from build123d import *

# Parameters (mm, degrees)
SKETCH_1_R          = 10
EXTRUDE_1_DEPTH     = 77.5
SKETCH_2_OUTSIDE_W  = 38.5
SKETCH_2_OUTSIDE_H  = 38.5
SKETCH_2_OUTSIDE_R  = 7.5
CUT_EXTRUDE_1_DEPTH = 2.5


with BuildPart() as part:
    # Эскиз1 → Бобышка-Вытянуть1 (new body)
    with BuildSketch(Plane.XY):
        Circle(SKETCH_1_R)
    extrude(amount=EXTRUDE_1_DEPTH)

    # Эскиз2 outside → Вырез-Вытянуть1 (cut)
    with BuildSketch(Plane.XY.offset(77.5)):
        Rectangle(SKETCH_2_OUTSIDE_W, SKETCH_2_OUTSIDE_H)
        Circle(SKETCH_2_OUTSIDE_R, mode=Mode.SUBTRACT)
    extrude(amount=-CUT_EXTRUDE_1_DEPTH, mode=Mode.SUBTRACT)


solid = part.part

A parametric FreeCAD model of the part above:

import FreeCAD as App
import Part
import Sketcher

V = App.Vector
Q = App.Units.Quantity

doc = App.newDocument("Part")
params = doc.addObject("Spreadsheet::Sheet", "Params")
for row, (alias, value) in enumerate([
    ("sketch1_diameter", "20 mm"),
    ("pad1_length", "77.5 mm"),
    ("sketch2_diameter", "15 mm"),
    ("sketch2_width", "38.5 mm"),
    ("pocket1_length", "2.5 mm"),
], start=1):
    params.set(f"A{row}", alias)
    params.set(f"B{row}", "=" + value)
    params.setAlias(f"B{row}", alias)

body = doc.addObject("PartDesign::Body", "Body")

# Sketch on XY plane
sketch1 = body.newObject("Sketcher::SketchObject", "Sketch")
sketch1.AttachmentSupport = (doc.getObject("XY_Plane"), [""])
sketch1.MapMode = "FlatFace"
sketch1.addGeometry(Part.Circle(V(0, 0, 0), V(0, 0, 1), 10), False)
sketch1.addConstraint(Sketcher.Constraint("Coincident", 0, 3, -1, 1))
sketch1.addConstraint(Sketcher.Constraint("Diameter", 0, Q("20 mm")))
sketch1.setExpression("Constraints[1]", "Params.sketch1_diameter")
pad1 = body.newObject("PartDesign::Pad", "Pad")
pad1.Profile = sketch1
pad1.setExpression("Length", "Params.pad1_length")

# Sketch on XY plane
sketch2 = body.newObject("Sketcher::SketchObject", "Sketch001")
sketch2.AttachmentSupport = (doc.getObject("XY_Plane"), [""])
sketch2.MapMode = "FlatFace"
sketch2.AttachmentOffset = App.Placement(V(0, 0, 77.5), App.Rotation())
sketch2.addGeometry(Part.LineSegment(V(-19, 19, 0), V(-19, -19, 0)), False)
sketch2.addGeometry(Part.LineSegment(V(-19, -19, 0), V(19, -19, 0)), False)
sketch2.addGeometry(Part.LineSegment(V(19, -19, 0), V(19, 19, 0)), False)
sketch2.addGeometry(Part.LineSegment(V(19, 19, 0), V(-19, 19, 0)), False)
sketch2.addGeometry(Part.Circle(V(0, 0, 0), V(0, 0, 1), 8), False)
sketch2.addConstraint(Sketcher.Constraint("Coincident", 0, 2, 1, 1))
sketch2.addConstraint(Sketcher.Constraint("Coincident", 1, 2, 2, 1))
sketch2.addConstraint(Sketcher.Constraint("Coincident", 2, 2, 3, 1))
sketch2.addConstraint(Sketcher.Constraint("Coincident", 3, 2, 0, 1))
sketch2.addConstraint(Sketcher.Constraint("Vertical", 0))
sketch2.addConstraint(Sketcher.Constraint("Horizontal", 1))
sketch2.addConstraint(Sketcher.Constraint("Vertical", 2))
sketch2.addConstraint(Sketcher.Constraint("Horizontal", 3))
sketch2.addConstraint(Sketcher.Constraint("Coincident", 4, 3, -1, 1))
sketch2.addConstraint(Sketcher.Constraint("Symmetric", 0, 2, 2, 2, -1, 1))
sketch2.addConstraint(Sketcher.Constraint("Equal", 3, 0))
sketch2.addConstraint(Sketcher.Constraint("Diameter", 4, Q("15 mm")))
sketch2.addConstraint(Sketcher.Constraint("DistanceX", 1, 1, 1, 2, Q("38.5 mm")))
sketch2.setExpression("Constraints[11]", "Params.sketch2_diameter")
sketch2.setExpression("Constraints[12]", "Params.sketch2_width")
pocket1 = body.newObject("PartDesign::Pocket", "Pocket")
pocket1.Profile = sketch2
pocket1.setExpression("Length", "Params.pocket1_length")

doc.recompute()
